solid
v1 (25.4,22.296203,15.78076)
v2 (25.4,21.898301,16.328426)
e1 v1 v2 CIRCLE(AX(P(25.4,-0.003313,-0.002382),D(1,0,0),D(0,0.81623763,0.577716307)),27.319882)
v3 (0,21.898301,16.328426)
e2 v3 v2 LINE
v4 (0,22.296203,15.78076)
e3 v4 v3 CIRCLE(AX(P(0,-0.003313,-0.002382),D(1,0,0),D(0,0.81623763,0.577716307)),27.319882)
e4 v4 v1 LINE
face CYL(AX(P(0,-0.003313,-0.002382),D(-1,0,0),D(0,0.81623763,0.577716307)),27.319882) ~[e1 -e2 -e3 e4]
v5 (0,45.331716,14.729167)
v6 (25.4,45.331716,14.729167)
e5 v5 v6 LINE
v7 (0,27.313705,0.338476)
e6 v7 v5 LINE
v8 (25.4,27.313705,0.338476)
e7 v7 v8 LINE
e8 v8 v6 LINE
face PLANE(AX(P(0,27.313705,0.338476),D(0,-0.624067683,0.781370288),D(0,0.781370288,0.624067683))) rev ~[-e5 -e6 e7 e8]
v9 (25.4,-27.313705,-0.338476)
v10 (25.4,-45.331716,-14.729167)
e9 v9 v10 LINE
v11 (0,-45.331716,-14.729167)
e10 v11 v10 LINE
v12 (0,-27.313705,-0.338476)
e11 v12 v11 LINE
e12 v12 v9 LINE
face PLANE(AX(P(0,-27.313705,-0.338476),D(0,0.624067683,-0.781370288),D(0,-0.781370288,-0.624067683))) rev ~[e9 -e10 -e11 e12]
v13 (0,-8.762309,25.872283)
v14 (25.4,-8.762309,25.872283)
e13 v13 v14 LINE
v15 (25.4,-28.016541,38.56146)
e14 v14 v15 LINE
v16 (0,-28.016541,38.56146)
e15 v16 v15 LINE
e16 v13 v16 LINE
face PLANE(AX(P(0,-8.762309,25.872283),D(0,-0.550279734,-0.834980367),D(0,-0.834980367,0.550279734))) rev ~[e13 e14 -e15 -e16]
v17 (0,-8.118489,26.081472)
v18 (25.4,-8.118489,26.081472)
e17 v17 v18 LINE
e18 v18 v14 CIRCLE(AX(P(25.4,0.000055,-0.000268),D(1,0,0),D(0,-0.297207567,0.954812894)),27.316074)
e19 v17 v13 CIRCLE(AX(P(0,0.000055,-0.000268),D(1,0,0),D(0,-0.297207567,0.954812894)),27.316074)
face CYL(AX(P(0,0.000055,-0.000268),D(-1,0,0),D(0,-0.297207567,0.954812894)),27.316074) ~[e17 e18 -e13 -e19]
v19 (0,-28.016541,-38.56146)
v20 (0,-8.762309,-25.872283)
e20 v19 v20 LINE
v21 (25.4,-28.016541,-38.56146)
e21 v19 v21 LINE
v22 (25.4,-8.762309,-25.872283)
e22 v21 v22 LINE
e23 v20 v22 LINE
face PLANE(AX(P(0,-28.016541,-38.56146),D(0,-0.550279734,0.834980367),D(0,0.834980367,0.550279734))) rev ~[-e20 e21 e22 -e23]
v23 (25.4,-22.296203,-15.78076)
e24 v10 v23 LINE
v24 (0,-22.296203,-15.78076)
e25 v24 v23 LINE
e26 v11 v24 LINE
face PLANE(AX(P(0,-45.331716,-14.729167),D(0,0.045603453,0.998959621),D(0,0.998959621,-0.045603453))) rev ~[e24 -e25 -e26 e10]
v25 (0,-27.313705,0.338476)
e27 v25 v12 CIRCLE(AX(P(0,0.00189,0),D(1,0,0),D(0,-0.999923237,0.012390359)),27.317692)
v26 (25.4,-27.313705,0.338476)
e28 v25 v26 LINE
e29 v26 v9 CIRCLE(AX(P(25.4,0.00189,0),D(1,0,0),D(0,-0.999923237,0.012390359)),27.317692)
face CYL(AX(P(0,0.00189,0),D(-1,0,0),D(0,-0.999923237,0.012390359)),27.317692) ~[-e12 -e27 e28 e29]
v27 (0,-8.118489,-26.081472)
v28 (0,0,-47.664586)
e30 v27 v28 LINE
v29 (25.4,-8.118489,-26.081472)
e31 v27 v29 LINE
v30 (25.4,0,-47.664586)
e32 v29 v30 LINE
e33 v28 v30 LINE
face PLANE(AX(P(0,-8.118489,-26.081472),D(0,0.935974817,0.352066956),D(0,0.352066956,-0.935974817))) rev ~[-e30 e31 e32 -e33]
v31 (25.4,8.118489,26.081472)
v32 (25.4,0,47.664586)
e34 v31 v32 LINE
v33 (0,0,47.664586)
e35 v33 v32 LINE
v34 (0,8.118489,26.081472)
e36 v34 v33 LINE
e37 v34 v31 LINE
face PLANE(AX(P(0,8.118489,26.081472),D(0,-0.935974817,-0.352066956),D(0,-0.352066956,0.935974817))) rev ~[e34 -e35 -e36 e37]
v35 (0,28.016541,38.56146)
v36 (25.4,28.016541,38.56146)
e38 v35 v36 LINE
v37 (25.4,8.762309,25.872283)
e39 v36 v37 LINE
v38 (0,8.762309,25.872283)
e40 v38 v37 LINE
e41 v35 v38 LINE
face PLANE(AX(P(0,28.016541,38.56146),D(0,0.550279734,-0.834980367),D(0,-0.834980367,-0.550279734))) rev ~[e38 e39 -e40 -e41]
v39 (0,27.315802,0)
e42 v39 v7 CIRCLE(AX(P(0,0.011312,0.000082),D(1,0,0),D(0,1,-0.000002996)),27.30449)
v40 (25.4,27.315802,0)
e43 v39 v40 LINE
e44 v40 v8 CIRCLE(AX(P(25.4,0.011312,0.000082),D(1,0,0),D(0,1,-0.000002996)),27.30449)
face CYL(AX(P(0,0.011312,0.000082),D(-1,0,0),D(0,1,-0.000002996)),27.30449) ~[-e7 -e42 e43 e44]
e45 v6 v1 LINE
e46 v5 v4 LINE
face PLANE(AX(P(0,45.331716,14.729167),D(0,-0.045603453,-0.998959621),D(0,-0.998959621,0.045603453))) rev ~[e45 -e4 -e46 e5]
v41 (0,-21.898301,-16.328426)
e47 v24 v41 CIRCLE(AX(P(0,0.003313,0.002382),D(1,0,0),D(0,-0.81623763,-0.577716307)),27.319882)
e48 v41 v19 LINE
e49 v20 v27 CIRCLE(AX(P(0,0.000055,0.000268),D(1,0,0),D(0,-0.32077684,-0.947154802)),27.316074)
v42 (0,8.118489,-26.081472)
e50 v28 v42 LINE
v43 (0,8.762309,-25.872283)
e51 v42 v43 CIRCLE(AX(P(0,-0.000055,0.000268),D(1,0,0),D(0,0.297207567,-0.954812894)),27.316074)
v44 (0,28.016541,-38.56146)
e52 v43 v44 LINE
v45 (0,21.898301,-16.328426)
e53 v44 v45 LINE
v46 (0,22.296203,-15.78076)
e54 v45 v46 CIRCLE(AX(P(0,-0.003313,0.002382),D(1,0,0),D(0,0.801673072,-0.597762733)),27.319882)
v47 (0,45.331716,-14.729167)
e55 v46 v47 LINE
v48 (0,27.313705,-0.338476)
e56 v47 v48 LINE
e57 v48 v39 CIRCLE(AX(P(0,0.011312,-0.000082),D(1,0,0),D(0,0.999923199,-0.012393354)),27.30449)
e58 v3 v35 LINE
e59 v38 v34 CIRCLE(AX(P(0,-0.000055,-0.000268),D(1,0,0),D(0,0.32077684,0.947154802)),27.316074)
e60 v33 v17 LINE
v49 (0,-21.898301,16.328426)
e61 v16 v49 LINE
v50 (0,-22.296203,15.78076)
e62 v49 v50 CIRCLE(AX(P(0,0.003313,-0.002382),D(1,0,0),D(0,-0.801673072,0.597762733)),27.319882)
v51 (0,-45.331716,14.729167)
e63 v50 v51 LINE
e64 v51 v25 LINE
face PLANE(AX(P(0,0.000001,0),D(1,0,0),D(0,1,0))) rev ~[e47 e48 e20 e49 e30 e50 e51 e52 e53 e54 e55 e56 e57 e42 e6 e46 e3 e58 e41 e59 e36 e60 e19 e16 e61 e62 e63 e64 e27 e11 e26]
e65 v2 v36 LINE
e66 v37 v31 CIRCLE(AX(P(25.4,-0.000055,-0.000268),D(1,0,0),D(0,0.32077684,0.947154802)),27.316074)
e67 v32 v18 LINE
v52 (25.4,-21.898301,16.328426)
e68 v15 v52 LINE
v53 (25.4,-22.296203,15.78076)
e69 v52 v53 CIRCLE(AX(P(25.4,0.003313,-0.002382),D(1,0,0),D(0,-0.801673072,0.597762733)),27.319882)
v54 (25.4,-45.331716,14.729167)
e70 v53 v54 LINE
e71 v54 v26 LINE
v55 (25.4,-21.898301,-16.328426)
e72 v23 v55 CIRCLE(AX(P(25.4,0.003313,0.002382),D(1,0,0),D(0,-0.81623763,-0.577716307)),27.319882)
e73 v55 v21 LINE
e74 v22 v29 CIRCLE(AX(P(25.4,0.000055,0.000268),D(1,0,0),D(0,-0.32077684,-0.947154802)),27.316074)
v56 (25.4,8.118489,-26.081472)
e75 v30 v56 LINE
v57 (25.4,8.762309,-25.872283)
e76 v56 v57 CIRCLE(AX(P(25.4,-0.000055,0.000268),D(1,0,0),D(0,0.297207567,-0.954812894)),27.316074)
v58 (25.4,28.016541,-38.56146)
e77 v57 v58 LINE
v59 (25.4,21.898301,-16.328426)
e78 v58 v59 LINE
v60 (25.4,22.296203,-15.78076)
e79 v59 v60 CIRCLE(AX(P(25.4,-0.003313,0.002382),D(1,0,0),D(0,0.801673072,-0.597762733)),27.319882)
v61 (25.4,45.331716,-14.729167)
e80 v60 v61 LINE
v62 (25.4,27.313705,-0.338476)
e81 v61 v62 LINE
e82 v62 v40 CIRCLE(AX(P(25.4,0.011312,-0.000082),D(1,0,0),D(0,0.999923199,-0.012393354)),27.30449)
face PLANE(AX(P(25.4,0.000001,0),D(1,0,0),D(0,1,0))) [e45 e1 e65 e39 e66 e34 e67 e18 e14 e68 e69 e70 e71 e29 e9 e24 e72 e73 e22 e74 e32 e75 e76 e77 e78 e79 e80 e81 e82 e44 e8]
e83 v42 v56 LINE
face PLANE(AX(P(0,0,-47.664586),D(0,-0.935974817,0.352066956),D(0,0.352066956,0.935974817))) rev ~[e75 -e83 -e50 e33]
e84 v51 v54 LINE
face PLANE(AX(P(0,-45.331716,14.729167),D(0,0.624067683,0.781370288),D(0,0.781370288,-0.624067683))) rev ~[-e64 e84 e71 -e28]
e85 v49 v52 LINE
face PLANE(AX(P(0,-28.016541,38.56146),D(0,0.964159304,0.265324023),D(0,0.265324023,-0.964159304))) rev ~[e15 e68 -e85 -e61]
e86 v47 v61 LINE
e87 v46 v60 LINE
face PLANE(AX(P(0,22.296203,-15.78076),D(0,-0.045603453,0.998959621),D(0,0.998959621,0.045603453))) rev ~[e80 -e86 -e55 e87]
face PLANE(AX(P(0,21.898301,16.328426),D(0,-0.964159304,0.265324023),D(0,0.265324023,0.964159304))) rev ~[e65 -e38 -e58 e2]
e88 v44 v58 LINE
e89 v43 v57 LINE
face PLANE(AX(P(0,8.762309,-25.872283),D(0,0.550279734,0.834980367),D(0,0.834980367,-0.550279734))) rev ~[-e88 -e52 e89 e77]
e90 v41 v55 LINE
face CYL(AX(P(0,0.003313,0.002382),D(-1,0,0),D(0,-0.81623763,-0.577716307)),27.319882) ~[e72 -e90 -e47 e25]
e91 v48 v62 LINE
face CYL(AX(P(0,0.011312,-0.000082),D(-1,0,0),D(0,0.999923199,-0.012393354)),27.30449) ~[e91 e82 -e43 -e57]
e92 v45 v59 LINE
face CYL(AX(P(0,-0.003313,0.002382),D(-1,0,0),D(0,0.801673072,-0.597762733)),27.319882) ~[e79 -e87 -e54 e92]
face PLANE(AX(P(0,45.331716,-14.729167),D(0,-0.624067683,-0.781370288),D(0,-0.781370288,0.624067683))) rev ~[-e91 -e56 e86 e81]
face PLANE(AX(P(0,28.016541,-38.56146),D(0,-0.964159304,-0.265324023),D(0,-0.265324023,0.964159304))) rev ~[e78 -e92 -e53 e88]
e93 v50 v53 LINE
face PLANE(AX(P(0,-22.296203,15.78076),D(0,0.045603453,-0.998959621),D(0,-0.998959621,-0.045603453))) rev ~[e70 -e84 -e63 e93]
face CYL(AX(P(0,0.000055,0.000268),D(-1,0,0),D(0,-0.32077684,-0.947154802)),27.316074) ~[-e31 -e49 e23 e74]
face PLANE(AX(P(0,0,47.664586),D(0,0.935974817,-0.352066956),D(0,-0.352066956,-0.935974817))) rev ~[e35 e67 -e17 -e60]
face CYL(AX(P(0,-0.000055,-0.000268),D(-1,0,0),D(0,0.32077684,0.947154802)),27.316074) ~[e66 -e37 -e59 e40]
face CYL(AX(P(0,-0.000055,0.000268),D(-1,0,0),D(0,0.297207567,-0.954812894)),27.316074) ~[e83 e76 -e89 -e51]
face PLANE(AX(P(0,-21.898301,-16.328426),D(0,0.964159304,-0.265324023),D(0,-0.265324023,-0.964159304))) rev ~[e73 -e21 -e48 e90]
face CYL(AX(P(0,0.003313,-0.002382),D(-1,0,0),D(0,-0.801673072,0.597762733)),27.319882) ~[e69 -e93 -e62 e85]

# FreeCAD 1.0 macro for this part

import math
import FreeCAD as App
import Part
import Sketcher
from FreeCAD import Vector
Q = App.Units.Quantity

doc = App.newDocument("Part")
body = doc.addObject("PartDesign::Body", "Body")

sketch1 = doc.addObject("Sketcher::SketchObject", "Sketch")
body.addObject(sketch1)
sketch1.AttachmentSupport = (doc.YZ_Plane, [""])
sketch1.MapMode = "FlatFace"
sketch1.addGeometry([
    Part.ArcOfCircle(Part.Circle(Vector(0.011312, -0.000082, 0), Vector(0, 0, 1), 27.30449), math.radians(-0.710105), math.radians(0.000172)),
    Part.ArcOfCircle(Part.Circle(Vector(0.011312, 0.000082, 0), Vector(0, 0, 1), 27.30449), math.radians(-0.000172), math.radians(0.710105)),
    Part.LineSegment(Vector(27.313705, 0.338476, 0), Vector(45.331716, 14.729167, 0)),
    Part.LineSegment(Vector(45.331716, 14.729167, 0), Vector(22.296203, 15.78076, 0)),
    Part.ArcOfCircle(Part.Circle(Vector(-0.003313, -0.002382, 0), Vector(0, 0, 1), 27.319882), math.radians(35.29008), math.radians(36.709833)),
    Part.LineSegment(Vector(21.898301, 16.328426, 0), Vector(28.016541, 38.56146, 0)),
    Part.LineSegment(Vector(28.016541, 38.56146, 0), Vector(8.762309, 25.872283, 0)),
    Part.ArcOfCircle(Part.Circle(Vector(-0.000055, -0.000268, 0), Vector(0, 0, 1), 27.316074), math.radians(71.290089), math.radians(72.71004)),
    Part.LineSegment(Vector(8.118489, 26.081472, 0), Vector(0, 47.664586, 0)),
    Part.LineSegment(Vector(0, 47.664586, 0), Vector(-8.118489, 26.081472, 0)),
    Part.ArcOfCircle(Part.Circle(Vector(0.000055, -0.000268, 0), Vector(0, 0, 1), 27.316074), math.radians(107.28996), math.radians(108.709911)),
    Part.LineSegment(Vector(-8.762309, 25.872283, 0), Vector(-28.016541, 38.56146, 0)),
    Part.LineSegment(Vector(-28.016541, 38.56146, 0), Vector(-21.898301, 16.328426, 0)),
    Part.ArcOfCircle(Part.Circle(Vector(0.003313, -0.002382, 0), Vector(0, 0, 1), 27.319882), math.radians(143.290167), math.radians(144.70992)),
    Part.LineSegment(Vector(-22.296203, 15.78076, 0), Vector(-45.331716, 14.729167, 0)),
    Part.LineSegment(Vector(-45.331716, 14.729167, 0), Vector(-27.313705, 0.338476, 0)),
    Part.ArcOfCircle(Part.Circle(Vector(0.00189, 0, 0), Vector(0, 0, 1), 27.317692), math.radians(179.290067), math.radians(180.709933)),
    Part.LineSegment(Vector(-27.313705, -0.338476, 0), Vector(-45.331716, -14.729167, 0)),
    Part.LineSegment(Vector(-45.331716, -14.729167, 0), Vector(-22.296203, -15.78076, 0)),
    Part.ArcOfCircle(Part.Circle(Vector(0.003313, 0.002382, 0), Vector(0, 0, 1), 27.319882), math.radians(-144.70992), math.radians(-143.290167)),
    Part.LineSegment(Vector(-21.898301, -16.328426, 0), Vector(-28.016541, -38.56146, 0)),
    Part.LineSegment(Vector(-28.016541, -38.56146, 0), Vector(-8.762309, -25.872283, 0)),
    Part.ArcOfCircle(Part.Circle(Vector(0.000055, 0.000268, 0), Vector(0, 0, 1), 27.316074), math.radians(-108.709911), math.radians(-107.28996)),
    Part.LineSegment(Vector(-8.118489, -26.081472, 0), Vector(0, -47.664586, 0)),
    Part.LineSegment(Vector(0, -47.664586, 0), Vector(8.118489, -26.081472, 0)),
    Part.ArcOfCircle(Part.Circle(Vector(-0.000055, 0.000268, 0), Vector(0, 0, 1), 27.316074), math.radians(-72.71004), math.radians(-71.290089)),
    Part.LineSegment(Vector(8.762309, -25.872283, 0), Vector(28.016541, -38.56146, 0)),
    Part.LineSegment(Vector(28.016541, -38.56146, 0), Vector(21.898301, -16.328426, 0)),
    Part.ArcOfCircle(Part.Circle(Vector(-0.003313, 0.002382, 0), Vector(0, 0, 1), 27.319882), math.radians(-36.709833), math.radians(-35.29008)),
    Part.LineSegment(Vector(22.296203, -15.78076, 0), Vector(45.331716, -14.729167, 0)),
    Part.LineSegment(Vector(45.331716, -14.729167, 0), Vector(27.313705, -0.338476, 0)),
], False)
sketch1.addConstraint([
    Sketcher.Constraint("Coincident", 0, 2, 1, 1),
    Sketcher.Constraint("Coincident", 1, 2, 2, 1),
    Sketcher.Constraint("Coincident", 2, 2, 3, 1),
    Sketcher.Constraint("Coincident", 3, 2, 4, 1),
    Sketcher.Constraint("Coincident", 4, 2, 5, 1),
    Sketcher.Constraint("Coincident", 5, 2, 6, 1),
    Sketcher.Constraint("Coincident", 6, 2, 7, 1),
    Sketcher.Constraint("Coincident", 7, 2, 8, 1),
    Sketcher.Constraint("Coincident", 8, 2, 9, 1),
    Sketcher.Constraint("Coincident", 9, 2, 10, 1),
    Sketcher.Constraint("Coincident", 10, 2, 11, 1),
    Sketcher.Constraint("Coincident", 11, 2, 12, 1),
    Sketcher.Constraint("Coincident", 12, 2, 13, 1),
    Sketcher.Constraint("Coincident", 13, 2, 14, 1),
    Sketcher.Constraint("Coincident", 14, 2, 15, 1),
    Sketcher.Constraint("Coincident", 15, 2, 16, 1),
    Sketcher.Constraint("Coincident", 16, 2, 17, 1),
    Sketcher.Constraint("Coincident", 17, 2, 18, 1),
    Sketcher.Constraint("Coincident", 18, 2, 19, 1),
    Sketcher.Constraint("Coincident", 19, 2, 20, 1),
    Sketcher.Constraint("Coincident", 20, 2, 21, 1),
    Sketcher.Constraint("Coincident", 21, 2, 22, 1),
    Sketcher.Constraint("Coincident", 22, 2, 23, 1),
    Sketcher.Constraint("Coincident", 23, 2, 24, 1),
    Sketcher.Constraint("Coincident", 24, 2, 25, 1),
    Sketcher.Constraint("Coincident", 25, 2, 26, 1),
    Sketcher.Constraint("Coincident", 26, 2, 27, 1),
    Sketcher.Constraint("Coincident", 27, 2, 28, 1),
    Sketcher.Constraint("Coincident", 28, 2, 29, 1),
    Sketcher.Constraint("Coincident", 29, 2, 30, 1),
    Sketcher.Constraint("Coincident", 30, 2, 0, 1),
    Sketcher.Constraint("Equal", 0, 1),
    Sketcher.Constraint("Equal", 7, 10),
    Sketcher.Constraint("Equal", 4, 13),
    Sketcher.Constraint("Equal", 13, 19),
    Sketcher.Constraint("Equal", 10, 22),
    Sketcher.Constraint("Equal", 22, 25),
    Sketcher.Constraint("Equal", 19, 28),
    Sketcher.Constraint("Symmetric", 4, 3, 19, 3, -1, 1),
    Sketcher.Constraint("Symmetric", 7, 3, 22, 3, -1, 1),
    Sketcher.Constraint("Symmetric", 10, 3, 25, 3, -1, 1),
    Sketcher.Constraint("Symmetric", 13, 3, 28, 3, -1, 1),
    Sketcher.Constraint("Symmetric", 1, 2, 16, 2, -1, 1),
    Sketcher.Constraint("Symmetric", 2, 2, 17, 2, -1, 1),
    Sketcher.Constraint("Symmetric", 5, 2, 20, 2, -1, 1),
    Sketcher.Constraint("Symmetric", 8, 2, 23, 2, -1, 1),
    Sketcher.Constraint("Symmetric", 11, 2, 26, 2, -1, 1),
    Sketcher.Constraint("Symmetric", 14, 2, 29, 2, -1, 1),
    Sketcher.Constraint("Symmetric", 15, 2, 30, 2, -1, 1),
    Sketcher.Constraint("Symmetric", 7, 3, 10, 3, -2),
    Sketcher.Constraint("Symmetric", 4, 3, 13, 3, -2),
    Sketcher.Constraint("Symmetric", 5, 2, 11, 2, -2),
    Sketcher.Constraint("Symmetric", 2, 2, 14, 2, -2),
    Sketcher.Constraint("Symmetric", 1, 2, 15, 2, -2),
    Sketcher.Constraint("PointOnObject", 0, 2, -1),
    Sketcher.Constraint("PointOnObject", 8, 2, -2),
    Sketcher.Constraint("Parallel", 3, 18),
    Sketcher.Constraint("Parallel", 5, 20),
    Sketcher.Constraint("Parallel", 6, 21),
    Sketcher.Constraint("Parallel", 8, 23),
    Sketcher.Constraint("Parallel", 9, 24),
    Sketcher.Constraint("Parallel", 11, 26),
    Sketcher.Constraint("Parallel", 12, 27),
    Sketcher.Constraint("Parallel", 14, 29),
    Sketcher.Constraint("Horizontal", 7, 2, 9, 2),
    Sketcher.Constraint("Horizontal", 6, 2, 10, 2),
    Sketcher.Constraint("Horizontal", 4, 2, 12, 2),
    Sketcher.Constraint("Horizontal", 3, 2, 13, 2),
    Sketcher.Constraint("Equal", 2, 3),
    Sketcher.Constraint("Equal", 3, 5),
    Sketcher.Constraint("Equal", 5, 6),
    Sketcher.Constraint("Equal", 6, 8),
    Sketcher.Constraint("Radius", 0, 27.30449),
    Sketcher.Constraint("Radius", 16, 27.317692),
    Sketcher.Constraint("Radius", 4, 27.319882),
    Sketcher.Constraint("Radius", 7, 27.316074),
    Sketcher.Constraint("DistanceX", 5, 2, 2, 2, Q("0.6816998 in")),
    Sketcher.Constraint("DistanceY", 28, 3, 10, 2, Q("1.0185001 in")),
    Sketcher.Constraint("DistanceX", -1, 1, 0, 2, 27.315802),
    Sketcher.Constraint("DistanceX", -1, 1, 4, 2, 21.898301),
    Sketcher.Constraint("DistanceY", 4, 3, 0, 3, 0.0023),
    Sketcher.Constraint("DistanceX", 13, 3, 0, 3, 0.007999),
    Sketcher.Constraint("DistanceX", 3, 2, 1, 2, 5.017502),
    Sketcher.Constraint("DistanceX", 3, 2, 0, 2, 5.019599),
    Sketcher.Constraint("DistanceY", 3, 2, 5, 2, 22.7807),
    Sketcher.Constraint("DistanceX", 9, 2, 19, 3, 8.121802),
    Sketcher.Constraint("DistanceX", 10, 2, 7, 2, 16.880798),
    Sketcher.Constraint("DistanceX", 4, 3, 7, 3, 0.003258),
])
pad1 = doc.addObject("PartDesign::Pad", "Pad")
body.addObject(pad1)
pad1.Profile = sketch1
pad1.Length = Q("1 in")

doc.recompute()
